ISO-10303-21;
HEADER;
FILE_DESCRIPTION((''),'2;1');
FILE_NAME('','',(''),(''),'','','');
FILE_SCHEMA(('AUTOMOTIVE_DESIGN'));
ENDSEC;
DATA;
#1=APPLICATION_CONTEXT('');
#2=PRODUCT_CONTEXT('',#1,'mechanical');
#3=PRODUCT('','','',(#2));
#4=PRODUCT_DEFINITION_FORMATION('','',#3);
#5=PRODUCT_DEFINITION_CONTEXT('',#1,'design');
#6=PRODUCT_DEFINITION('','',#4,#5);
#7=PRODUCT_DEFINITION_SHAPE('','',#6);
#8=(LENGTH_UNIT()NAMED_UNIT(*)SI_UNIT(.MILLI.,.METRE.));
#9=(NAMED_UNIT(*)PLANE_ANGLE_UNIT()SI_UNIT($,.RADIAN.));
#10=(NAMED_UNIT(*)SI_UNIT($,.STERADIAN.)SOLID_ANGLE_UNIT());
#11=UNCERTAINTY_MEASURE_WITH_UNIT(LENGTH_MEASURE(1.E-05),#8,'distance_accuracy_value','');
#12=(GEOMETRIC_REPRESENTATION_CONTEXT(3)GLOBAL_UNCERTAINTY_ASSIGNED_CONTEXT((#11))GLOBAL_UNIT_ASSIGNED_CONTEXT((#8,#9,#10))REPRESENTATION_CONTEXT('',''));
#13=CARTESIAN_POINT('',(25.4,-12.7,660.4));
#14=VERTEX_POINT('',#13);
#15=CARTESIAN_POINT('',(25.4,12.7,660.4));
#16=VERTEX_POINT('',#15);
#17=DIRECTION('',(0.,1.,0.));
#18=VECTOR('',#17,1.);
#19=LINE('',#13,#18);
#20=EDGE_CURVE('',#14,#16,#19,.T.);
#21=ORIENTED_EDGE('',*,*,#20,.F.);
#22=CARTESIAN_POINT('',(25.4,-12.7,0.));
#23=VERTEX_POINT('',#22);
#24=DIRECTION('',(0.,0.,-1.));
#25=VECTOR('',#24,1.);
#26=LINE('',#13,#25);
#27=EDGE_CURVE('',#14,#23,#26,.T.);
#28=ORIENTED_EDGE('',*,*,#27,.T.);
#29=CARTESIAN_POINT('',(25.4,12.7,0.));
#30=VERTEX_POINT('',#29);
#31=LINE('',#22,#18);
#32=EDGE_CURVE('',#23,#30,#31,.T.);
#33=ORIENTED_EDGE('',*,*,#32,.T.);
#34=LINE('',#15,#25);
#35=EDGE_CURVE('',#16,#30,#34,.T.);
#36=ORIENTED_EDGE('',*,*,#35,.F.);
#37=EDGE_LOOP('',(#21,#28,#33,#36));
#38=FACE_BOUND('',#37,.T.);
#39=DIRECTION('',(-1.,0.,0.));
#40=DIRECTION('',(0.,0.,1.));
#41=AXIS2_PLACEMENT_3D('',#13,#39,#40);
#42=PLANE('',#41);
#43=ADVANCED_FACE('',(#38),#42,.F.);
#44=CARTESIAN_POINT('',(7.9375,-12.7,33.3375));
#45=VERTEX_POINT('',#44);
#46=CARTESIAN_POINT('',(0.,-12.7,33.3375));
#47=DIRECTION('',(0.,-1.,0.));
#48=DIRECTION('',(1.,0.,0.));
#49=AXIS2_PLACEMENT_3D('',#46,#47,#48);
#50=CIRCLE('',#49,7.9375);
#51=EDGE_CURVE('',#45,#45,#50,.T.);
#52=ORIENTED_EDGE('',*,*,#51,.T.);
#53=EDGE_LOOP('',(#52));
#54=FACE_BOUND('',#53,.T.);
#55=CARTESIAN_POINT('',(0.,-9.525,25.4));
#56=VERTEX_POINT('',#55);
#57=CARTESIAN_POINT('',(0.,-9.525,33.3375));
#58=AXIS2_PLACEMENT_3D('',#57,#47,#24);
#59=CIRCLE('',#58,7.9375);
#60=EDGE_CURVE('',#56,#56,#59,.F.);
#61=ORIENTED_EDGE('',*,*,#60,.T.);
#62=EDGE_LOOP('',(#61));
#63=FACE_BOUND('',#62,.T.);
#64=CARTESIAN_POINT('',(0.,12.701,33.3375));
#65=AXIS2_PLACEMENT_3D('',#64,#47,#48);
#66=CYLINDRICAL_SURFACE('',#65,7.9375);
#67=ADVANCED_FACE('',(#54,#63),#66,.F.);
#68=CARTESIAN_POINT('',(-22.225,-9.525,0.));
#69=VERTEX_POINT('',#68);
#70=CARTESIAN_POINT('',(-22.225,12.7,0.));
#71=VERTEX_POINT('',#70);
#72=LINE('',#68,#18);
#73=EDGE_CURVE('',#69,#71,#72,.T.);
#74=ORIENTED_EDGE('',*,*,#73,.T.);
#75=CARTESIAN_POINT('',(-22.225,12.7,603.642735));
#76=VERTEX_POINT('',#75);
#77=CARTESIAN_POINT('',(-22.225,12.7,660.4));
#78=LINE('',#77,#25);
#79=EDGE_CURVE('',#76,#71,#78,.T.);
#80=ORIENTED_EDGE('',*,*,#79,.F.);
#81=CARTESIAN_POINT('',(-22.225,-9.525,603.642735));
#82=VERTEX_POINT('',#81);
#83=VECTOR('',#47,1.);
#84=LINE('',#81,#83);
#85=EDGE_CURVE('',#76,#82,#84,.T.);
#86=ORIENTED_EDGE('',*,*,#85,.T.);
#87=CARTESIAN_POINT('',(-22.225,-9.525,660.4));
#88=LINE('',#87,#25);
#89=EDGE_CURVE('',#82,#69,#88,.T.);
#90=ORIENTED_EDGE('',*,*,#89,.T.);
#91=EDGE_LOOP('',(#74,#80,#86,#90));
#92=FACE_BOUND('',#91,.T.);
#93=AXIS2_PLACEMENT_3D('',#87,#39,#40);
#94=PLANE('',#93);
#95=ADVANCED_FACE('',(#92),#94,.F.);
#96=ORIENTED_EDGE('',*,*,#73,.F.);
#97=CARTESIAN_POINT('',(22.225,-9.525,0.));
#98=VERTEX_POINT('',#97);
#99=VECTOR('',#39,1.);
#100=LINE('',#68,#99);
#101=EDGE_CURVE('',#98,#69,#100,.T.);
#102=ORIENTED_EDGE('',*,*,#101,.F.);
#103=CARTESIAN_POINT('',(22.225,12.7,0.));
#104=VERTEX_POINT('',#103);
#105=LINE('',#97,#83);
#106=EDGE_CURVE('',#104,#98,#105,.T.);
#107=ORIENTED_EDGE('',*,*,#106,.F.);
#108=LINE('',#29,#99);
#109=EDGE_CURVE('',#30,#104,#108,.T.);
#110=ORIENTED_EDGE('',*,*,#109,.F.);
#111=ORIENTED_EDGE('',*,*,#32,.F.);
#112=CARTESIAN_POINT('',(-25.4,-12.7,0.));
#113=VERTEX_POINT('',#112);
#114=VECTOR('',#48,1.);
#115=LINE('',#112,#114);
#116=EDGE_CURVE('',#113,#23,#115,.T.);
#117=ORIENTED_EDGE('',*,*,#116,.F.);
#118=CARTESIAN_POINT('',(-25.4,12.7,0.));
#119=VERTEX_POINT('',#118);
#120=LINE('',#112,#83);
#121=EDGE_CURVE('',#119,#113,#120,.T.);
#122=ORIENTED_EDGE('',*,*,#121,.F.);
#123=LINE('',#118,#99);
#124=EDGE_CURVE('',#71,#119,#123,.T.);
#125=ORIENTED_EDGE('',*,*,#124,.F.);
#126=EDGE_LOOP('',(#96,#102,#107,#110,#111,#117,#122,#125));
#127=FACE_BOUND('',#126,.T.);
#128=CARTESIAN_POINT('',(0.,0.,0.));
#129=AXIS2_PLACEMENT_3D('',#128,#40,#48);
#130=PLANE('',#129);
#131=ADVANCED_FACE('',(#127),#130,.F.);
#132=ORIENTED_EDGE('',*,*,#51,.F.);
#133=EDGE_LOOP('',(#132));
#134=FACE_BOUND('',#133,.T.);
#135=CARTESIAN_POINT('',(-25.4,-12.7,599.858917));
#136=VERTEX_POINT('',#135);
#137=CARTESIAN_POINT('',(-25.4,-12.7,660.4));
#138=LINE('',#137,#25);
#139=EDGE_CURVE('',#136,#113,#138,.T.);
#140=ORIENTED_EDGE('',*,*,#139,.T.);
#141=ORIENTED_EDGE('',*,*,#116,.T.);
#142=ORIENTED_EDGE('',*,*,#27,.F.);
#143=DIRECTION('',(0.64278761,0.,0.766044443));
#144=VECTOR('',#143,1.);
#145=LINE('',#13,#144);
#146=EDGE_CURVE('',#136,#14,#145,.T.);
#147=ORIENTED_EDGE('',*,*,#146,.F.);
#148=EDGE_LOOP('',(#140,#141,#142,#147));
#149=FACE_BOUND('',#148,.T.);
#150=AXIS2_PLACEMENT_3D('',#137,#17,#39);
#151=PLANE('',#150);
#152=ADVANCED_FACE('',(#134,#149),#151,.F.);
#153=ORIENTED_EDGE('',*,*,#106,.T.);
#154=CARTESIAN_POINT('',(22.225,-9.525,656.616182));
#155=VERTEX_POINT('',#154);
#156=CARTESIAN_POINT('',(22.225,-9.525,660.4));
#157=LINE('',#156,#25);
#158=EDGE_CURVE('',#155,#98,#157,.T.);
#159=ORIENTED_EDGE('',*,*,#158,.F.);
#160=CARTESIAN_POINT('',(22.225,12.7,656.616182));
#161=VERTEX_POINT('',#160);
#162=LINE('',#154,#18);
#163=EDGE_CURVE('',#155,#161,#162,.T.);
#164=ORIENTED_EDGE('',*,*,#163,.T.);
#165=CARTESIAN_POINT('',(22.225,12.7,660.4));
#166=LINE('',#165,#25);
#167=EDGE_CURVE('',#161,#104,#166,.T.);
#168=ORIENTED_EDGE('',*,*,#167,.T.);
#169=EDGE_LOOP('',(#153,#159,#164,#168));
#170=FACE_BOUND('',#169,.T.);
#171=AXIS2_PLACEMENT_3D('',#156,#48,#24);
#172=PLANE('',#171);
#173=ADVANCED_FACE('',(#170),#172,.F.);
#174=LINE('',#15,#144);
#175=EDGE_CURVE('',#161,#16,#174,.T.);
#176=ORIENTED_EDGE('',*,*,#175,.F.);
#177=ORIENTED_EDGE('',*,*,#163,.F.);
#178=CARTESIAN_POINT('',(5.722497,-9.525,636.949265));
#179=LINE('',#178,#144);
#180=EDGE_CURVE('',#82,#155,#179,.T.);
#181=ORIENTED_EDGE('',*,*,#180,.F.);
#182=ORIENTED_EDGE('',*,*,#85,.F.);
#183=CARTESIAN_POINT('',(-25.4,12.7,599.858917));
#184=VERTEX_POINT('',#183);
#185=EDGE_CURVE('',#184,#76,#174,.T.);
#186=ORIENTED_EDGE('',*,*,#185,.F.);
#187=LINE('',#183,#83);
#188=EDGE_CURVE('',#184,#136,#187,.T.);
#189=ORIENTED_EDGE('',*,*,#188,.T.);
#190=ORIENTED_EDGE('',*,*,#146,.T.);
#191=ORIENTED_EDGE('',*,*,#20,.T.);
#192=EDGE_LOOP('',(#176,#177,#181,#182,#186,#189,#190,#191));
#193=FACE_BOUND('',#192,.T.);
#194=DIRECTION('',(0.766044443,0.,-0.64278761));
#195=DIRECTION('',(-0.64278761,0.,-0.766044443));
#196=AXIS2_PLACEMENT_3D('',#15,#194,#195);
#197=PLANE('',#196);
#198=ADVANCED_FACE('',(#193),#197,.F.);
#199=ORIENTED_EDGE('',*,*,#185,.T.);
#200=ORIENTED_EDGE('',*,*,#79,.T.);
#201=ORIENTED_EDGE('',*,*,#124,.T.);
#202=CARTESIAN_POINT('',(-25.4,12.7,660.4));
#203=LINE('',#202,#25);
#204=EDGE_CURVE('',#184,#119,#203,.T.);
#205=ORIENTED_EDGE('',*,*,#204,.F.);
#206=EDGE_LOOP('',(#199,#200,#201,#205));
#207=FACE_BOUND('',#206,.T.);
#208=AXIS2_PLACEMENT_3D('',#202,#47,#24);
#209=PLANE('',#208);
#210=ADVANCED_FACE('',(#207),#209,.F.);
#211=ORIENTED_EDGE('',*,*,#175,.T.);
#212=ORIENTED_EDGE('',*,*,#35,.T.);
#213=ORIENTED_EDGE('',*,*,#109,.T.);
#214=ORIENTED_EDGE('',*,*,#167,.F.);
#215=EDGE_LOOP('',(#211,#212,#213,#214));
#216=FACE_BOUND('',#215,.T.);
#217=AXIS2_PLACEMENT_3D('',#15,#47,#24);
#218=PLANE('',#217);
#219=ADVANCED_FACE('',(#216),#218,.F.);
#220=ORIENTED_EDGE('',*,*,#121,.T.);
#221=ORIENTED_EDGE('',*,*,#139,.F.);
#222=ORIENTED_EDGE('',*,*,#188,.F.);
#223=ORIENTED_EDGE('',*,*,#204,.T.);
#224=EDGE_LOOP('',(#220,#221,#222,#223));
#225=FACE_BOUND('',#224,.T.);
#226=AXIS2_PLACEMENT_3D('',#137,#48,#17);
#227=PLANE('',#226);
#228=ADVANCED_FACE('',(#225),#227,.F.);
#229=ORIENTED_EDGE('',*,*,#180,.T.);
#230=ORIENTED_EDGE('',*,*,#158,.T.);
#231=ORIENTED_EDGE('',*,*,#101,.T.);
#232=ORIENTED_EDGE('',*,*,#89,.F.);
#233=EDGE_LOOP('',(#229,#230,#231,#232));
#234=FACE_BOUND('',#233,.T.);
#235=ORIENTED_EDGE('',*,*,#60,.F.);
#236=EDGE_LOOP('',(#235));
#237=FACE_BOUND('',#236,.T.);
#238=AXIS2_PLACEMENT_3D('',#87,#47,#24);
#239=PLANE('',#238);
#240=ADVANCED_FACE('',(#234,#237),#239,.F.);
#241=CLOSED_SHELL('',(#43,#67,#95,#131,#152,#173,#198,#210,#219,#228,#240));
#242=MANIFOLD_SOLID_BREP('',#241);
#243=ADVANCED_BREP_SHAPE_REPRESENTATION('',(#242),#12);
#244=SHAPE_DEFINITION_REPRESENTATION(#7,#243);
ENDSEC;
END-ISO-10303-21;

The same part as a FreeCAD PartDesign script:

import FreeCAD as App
import Part
import Sketcher
Q = App.Units.Quantity


def add_polygon(sketch, points):
    """Adds a closed chain of lines whose ends are joined by coincident constraints."""
    first, n = sketch.GeometryCount, len(points)
    for a, b in zip(points, points[1:] + points[:1]):
        sketch.addGeometry(Part.LineSegment(App.Vector(*a, 0), App.Vector(*b, 0)), False)
    for i in range(n):
        sketch.addConstraint(Sketcher.Constraint("Coincident", first + i, 2, first + (i + 1) % n, 1))

doc = App.newDocument("Part")
body = doc.addObject("PartDesign::Body", "Body")

# Sketch on XY plane
sketch1 = body.newObject("Sketcher::SketchObject", "Sketch")
sketch1.AttachmentSupport = (doc.getObject("XY_Plane"), [""])
sketch1.MapMode = "FlatFace"
add_polygon(sketch1, [(-22.2, -9.5), (-22.2, 12.7), (-25.4, 12.7), (-25.4, -12.7), (25.4, -12.7), (25.4, 12.7), (22.2, 12.7), (22.2, -9.5)])  # lines 0-7
sketch1.addConstraint([
    Sketcher.Constraint("Vertical", 0),
    Sketcher.Constraint("Horizontal", 1),
    Sketcher.Constraint("Vertical", 2),
    Sketcher.Constraint("Horizontal", 3),
    Sketcher.Constraint("Vertical", 4),
    Sketcher.Constraint("Horizontal", 5),
    Sketcher.Constraint("Vertical", 6),
    Sketcher.Constraint("Horizontal", 7),
    Sketcher.Constraint("Symmetric", 1, 2, 3, 2, -1, 1),
    Sketcher.Constraint("Symmetric", 0, 2, 5, 2, -2),
    Sketcher.Constraint("DistanceX", 3, 1, 3, 2, Q("2 in")),
    Sketcher.Constraint("DistanceY", 2, 2, 2, 1, Q("1 in")),
    Sketcher.Constraint("DistanceX", 7, 2, 7, 1, Q("1.75 in")),
    Sketcher.Constraint("DistanceY", 0, 1, 0, 2, Q("0.875 in")),
])
pad1 = body.newObject("PartDesign::Pad", "Pad")
pad1.Profile = sketch1
pad1.Length = Q("26 in")

# Sketch on XZ plane
sketch2 = body.newObject("Sketcher::SketchObject", "Sketch001")
sketch2.AttachmentSupport = (doc.getObject("XZ_Plane"), [""])
sketch2.MapMode = "FlatFace"
sketch2.AttachmentOffset = App.Placement(App.Vector(0, 0, 0.5 * 25.4), App.Rotation())
add_polygon(sketch2, [(-25, 600), (25, 660), (-25, 660)])  # lines 0-2
sketch2.addConstraint([
    Sketcher.Constraint("Horizontal", 1),
    Sketcher.Constraint("Vertical", 2),
    Sketcher.Constraint("DistanceX", 1, 2, 1, 1, Q("2 in")),
    Sketcher.Constraint("DistanceX", -1, 1, 0, 2, Q("1 in")),
    Sketcher.Constraint("DistanceY", -1, 1, 0, 2, Q("26 in")),
    Sketcher.Constraint("Angle", 0, Q("50 deg")),
])
pocket1 = body.newObject("PartDesign::Pocket", "Pocket")
pocket1.Profile = sketch2
pocket1.Type = "ThroughAll"

# Sketch on XZ plane
sketch3 = body.newObject("Sketcher::SketchObject", "Sketch002")
sketch3.AttachmentSupport = (doc.getObject("XZ_Plane"), [""])
sketch3.MapMode = "FlatFace"
sketch3.AttachmentOffset = App.Placement(App.Vector(0, 0, 0.5 * 25.4), App.Rotation())
sketch3.addGeometry(Part.Circle(App.Vector(0, 33, 0), App.Vector(0, 0, 1), 8), False)
sketch3.addConstraint([
    Sketcher.Constraint("PointOnObject", 0, 3, -2),
    Sketcher.Constraint("Diameter", 0, Q("0.625 in")),
    Sketcher.Constraint("DistanceY", -1, 1, 0, 3, Q("1.3125 in")),
])
pocket2 = body.newObject("PartDesign::Pocket", "Pocket001")
pocket2.Profile = sketch3
pocket2.Type = "UpToFirst"

doc.recompute()
